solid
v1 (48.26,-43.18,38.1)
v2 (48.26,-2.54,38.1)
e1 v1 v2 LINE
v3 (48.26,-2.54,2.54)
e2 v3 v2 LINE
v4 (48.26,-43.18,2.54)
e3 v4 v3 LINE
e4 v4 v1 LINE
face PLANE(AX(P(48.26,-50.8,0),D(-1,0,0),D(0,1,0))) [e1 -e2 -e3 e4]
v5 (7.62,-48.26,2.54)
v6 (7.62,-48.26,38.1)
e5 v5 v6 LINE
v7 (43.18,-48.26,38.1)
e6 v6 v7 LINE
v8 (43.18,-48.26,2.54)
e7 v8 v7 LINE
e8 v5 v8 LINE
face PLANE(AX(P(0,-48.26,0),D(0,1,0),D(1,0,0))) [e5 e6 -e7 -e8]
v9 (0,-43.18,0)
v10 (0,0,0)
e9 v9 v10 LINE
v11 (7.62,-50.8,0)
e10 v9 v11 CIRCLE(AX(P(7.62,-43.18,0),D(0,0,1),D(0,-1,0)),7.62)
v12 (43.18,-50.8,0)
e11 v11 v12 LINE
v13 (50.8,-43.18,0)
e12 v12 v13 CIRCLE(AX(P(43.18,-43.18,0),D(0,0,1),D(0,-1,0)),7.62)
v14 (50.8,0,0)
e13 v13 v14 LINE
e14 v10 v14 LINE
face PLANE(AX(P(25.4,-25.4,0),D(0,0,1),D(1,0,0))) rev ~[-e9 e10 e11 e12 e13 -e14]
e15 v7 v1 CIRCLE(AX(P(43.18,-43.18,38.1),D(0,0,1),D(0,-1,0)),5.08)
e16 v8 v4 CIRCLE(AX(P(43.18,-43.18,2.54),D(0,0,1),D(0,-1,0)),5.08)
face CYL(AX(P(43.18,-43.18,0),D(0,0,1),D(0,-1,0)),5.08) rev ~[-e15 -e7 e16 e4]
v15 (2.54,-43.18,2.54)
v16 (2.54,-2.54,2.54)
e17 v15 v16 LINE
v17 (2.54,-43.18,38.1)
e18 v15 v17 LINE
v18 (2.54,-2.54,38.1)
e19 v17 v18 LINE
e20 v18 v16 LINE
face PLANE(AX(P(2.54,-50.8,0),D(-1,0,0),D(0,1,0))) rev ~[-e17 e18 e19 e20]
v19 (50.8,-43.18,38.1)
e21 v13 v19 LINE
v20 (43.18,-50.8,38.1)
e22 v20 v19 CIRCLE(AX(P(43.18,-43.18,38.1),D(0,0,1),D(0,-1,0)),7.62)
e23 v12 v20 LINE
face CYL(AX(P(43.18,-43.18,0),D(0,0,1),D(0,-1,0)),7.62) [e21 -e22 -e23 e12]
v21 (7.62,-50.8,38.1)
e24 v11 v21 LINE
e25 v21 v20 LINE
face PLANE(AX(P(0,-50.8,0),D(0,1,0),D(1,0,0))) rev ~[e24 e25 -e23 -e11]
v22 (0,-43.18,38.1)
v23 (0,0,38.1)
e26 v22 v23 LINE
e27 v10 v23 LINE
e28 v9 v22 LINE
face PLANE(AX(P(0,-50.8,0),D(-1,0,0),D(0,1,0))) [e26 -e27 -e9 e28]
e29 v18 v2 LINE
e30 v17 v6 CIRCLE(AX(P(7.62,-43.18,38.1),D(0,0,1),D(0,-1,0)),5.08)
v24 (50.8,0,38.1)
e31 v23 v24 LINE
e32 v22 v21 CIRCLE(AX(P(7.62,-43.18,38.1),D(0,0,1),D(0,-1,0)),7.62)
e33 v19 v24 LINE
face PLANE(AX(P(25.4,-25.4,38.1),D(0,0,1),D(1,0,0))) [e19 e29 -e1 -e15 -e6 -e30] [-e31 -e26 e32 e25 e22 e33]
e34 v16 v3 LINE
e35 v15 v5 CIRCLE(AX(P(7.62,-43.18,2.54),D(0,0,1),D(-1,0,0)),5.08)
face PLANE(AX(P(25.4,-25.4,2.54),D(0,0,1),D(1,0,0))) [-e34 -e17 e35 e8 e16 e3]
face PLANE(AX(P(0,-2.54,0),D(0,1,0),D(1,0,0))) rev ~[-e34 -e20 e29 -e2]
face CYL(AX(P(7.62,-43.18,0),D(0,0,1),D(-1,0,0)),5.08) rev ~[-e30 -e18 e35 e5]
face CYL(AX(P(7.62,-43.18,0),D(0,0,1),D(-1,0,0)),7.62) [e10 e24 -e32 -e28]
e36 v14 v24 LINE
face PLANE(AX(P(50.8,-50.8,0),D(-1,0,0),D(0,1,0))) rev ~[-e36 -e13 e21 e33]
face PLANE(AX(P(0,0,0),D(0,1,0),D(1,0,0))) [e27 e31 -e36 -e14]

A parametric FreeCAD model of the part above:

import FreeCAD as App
import Part
import Sketcher
Q = App.Units.Quantity


def edges_at(feature, points):
    """Names of the edges that pass closest to the given points."""
    edges = feature.Shape.Edges
    near = lambda p: min(range(len(edges)), key=lambda i: edges[i].distToShape(Part.Vertex(*p))[0])
    return sorted({f"Edge{near(p) + 1}" for p in points})


def faces_at(feature, points):
    """Names of the faces that lie closest to the given points."""
    faces = feature.Shape.Faces
    near = lambda p: min(range(len(faces)), key=lambda i: faces[i].distToShape(Part.Vertex(*p))[0])
    return sorted({f"Face{near(p) + 1}" for p in points})

doc = App.newDocument("Part")
params = doc.addObject("Spreadsheet::Sheet", "Params")
for row, (alias, value) in enumerate([
    ("sketch1_width", "2 in"),
    ("pad1_length", "1.5 in"),
    ("fillet_radius", "0.3 in"),
    ("thickness_wall", "0.1 in"),
], start=1):
    params.set(f"A{row}", alias)
    params.set(f"B{row}", "=" + value)
    params.setAlias(f"B{row}", alias)

body = doc.addObject("PartDesign::Body", "Body")

sketch1 = body.newObject("Sketcher::SketchObject", "Sketch")
sketch1.AttachmentSupport = (doc.getObject("XY_Plane"), [""])
sketch1.MapMode = "FlatFace"
sketch1.addGeometry(Part.LineSegment(App.Vector(0, 0, 0), App.Vector(0, -51, 0)), False)
sketch1.addGeometry(Part.LineSegment(App.Vector(0, -51, 0), App.Vector(51, -51, 0)), False)
sketch1.addGeometry(Part.LineSegment(App.Vector(51, -51, 0), App.Vector(51, 0, 0)), False)
sketch1.addGeometry(Part.LineSegment(App.Vector(51, 0, 0), App.Vector(0, 0, 0)), False)
sketch1.addConstraint(Sketcher.Constraint("Coincident", 0, 2, 1, 1))
sketch1.addConstraint(Sketcher.Constraint("Coincident", 1, 2, 2, 1))
sketch1.addConstraint(Sketcher.Constraint("Coincident", 2, 2, 3, 1))
sketch1.addConstraint(Sketcher.Constraint("Coincident", 3, 2, 0, 1))
sketch1.addConstraint(Sketcher.Constraint("Vertical", 0))
sketch1.addConstraint(Sketcher.Constraint("Horizontal", 1))
sketch1.addConstraint(Sketcher.Constraint("Vertical", 2))
sketch1.addConstraint(Sketcher.Constraint("Horizontal", 3))
sketch1.addConstraint(Sketcher.Constraint("Coincident", 3, 2, -1, 1))
sketch1.addConstraint(Sketcher.Constraint("Equal", 3, 0))
sketch1.addConstraint(Sketcher.Constraint("DistanceX", 1, 1, 1, 2, Q("2 in")))
sketch1.setExpression("Constraints[10]", "Params.sketch1_width")
pad1 = body.newObject("PartDesign::Pad", "Pad")
pad1.Profile = sketch1
pad1.setExpression("Length", "Params.pad1_length")
doc.recompute()

fillet = body.newObject("PartDesign::Fillet", "Fillet")
fillet.Base = (pad1, edges_at(pad1, [(50.8, -50.8, 19.05), (0, -50.8, 19.05)]))
fillet.setExpression("Radius", "Params.fillet_radius")
doc.recompute()

thickness = body.newObject("PartDesign::Thickness", "Thickness")
thickness.Base = (fillet, faces_at(fillet, [(25.4, -25.4, 38.1)]))
thickness.setExpression("Value", "Params.thickness_wall")
thickness.Reversed = True
thickness.Join = "Arc"

doc.recompute()
